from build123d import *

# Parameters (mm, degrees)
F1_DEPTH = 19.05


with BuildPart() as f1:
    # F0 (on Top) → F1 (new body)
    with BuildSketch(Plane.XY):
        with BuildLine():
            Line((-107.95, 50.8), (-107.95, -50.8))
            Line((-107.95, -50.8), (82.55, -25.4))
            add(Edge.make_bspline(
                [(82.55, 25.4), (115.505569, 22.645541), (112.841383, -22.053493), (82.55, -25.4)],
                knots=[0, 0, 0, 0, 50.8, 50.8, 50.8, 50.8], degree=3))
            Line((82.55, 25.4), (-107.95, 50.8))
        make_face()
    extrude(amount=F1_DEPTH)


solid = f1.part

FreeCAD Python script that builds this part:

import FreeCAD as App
import Part
import Sketcher

V = App.Vector
Q = App.Units.Quantity

doc = App.newDocument("Part")
body = doc.addObject("PartDesign::Body", "Body")

# Sketch on XY plane
sketch1 = body.newObject("Sketcher::SketchObject", "Sketch")
sketch1.AttachmentSupport = (doc.getObject("XY_Plane"), [""])
sketch1.MapMode = "FlatFace"
sketch1.addGeometry([
    Part.LineSegment(V(-107.95, 50.8, 0), V(-107.95, -50.8, 0)),
    Part.LineSegment(V(-107.95, -50.8, 0), V(82.55, -25.4, 0)),
    Part.BSplineCurve([V(82.55, 25.4, 0), V(115.505569, 22.645541, 0), V(112.841383, -22.053493, 0), V(82.55, -25.4, 0)], [4, 4], [0, 50.8], False, 3, [1, 1, 1, 1], False),
    Part.LineSegment(V(82.55, 25.4, 0), V(-107.95, 50.8, 0)),
], False)
sketch1.addConstraint([
    Sketcher.Constraint("Block", 2),
    Sketcher.Constraint("Coincident", 0, 2, 1, 1),
    Sketcher.Constraint("Coincident", 1, 2, 2, 2),
    Sketcher.Constraint("Coincident", 2, 1, 3, 1),
    Sketcher.Constraint("Coincident", 3, 2, 0, 1),
    Sketcher.Constraint("Vertical", 0),
    Sketcher.Constraint("DistanceY", 0, 2, 0, 1, Q("4 in")),
    Sketcher.Constraint("DistanceY", 0, 2, -1, 1, Q("2 in")),
    Sketcher.Constraint("DistanceX", 0, 2, 1, 2, Q("7.5 in")),
])
pad1 = body.newObject("PartDesign::Pad", "Pad")
pad1.Profile = sketch1
pad1.Length = Q("0.75 in")

doc.recompute()
